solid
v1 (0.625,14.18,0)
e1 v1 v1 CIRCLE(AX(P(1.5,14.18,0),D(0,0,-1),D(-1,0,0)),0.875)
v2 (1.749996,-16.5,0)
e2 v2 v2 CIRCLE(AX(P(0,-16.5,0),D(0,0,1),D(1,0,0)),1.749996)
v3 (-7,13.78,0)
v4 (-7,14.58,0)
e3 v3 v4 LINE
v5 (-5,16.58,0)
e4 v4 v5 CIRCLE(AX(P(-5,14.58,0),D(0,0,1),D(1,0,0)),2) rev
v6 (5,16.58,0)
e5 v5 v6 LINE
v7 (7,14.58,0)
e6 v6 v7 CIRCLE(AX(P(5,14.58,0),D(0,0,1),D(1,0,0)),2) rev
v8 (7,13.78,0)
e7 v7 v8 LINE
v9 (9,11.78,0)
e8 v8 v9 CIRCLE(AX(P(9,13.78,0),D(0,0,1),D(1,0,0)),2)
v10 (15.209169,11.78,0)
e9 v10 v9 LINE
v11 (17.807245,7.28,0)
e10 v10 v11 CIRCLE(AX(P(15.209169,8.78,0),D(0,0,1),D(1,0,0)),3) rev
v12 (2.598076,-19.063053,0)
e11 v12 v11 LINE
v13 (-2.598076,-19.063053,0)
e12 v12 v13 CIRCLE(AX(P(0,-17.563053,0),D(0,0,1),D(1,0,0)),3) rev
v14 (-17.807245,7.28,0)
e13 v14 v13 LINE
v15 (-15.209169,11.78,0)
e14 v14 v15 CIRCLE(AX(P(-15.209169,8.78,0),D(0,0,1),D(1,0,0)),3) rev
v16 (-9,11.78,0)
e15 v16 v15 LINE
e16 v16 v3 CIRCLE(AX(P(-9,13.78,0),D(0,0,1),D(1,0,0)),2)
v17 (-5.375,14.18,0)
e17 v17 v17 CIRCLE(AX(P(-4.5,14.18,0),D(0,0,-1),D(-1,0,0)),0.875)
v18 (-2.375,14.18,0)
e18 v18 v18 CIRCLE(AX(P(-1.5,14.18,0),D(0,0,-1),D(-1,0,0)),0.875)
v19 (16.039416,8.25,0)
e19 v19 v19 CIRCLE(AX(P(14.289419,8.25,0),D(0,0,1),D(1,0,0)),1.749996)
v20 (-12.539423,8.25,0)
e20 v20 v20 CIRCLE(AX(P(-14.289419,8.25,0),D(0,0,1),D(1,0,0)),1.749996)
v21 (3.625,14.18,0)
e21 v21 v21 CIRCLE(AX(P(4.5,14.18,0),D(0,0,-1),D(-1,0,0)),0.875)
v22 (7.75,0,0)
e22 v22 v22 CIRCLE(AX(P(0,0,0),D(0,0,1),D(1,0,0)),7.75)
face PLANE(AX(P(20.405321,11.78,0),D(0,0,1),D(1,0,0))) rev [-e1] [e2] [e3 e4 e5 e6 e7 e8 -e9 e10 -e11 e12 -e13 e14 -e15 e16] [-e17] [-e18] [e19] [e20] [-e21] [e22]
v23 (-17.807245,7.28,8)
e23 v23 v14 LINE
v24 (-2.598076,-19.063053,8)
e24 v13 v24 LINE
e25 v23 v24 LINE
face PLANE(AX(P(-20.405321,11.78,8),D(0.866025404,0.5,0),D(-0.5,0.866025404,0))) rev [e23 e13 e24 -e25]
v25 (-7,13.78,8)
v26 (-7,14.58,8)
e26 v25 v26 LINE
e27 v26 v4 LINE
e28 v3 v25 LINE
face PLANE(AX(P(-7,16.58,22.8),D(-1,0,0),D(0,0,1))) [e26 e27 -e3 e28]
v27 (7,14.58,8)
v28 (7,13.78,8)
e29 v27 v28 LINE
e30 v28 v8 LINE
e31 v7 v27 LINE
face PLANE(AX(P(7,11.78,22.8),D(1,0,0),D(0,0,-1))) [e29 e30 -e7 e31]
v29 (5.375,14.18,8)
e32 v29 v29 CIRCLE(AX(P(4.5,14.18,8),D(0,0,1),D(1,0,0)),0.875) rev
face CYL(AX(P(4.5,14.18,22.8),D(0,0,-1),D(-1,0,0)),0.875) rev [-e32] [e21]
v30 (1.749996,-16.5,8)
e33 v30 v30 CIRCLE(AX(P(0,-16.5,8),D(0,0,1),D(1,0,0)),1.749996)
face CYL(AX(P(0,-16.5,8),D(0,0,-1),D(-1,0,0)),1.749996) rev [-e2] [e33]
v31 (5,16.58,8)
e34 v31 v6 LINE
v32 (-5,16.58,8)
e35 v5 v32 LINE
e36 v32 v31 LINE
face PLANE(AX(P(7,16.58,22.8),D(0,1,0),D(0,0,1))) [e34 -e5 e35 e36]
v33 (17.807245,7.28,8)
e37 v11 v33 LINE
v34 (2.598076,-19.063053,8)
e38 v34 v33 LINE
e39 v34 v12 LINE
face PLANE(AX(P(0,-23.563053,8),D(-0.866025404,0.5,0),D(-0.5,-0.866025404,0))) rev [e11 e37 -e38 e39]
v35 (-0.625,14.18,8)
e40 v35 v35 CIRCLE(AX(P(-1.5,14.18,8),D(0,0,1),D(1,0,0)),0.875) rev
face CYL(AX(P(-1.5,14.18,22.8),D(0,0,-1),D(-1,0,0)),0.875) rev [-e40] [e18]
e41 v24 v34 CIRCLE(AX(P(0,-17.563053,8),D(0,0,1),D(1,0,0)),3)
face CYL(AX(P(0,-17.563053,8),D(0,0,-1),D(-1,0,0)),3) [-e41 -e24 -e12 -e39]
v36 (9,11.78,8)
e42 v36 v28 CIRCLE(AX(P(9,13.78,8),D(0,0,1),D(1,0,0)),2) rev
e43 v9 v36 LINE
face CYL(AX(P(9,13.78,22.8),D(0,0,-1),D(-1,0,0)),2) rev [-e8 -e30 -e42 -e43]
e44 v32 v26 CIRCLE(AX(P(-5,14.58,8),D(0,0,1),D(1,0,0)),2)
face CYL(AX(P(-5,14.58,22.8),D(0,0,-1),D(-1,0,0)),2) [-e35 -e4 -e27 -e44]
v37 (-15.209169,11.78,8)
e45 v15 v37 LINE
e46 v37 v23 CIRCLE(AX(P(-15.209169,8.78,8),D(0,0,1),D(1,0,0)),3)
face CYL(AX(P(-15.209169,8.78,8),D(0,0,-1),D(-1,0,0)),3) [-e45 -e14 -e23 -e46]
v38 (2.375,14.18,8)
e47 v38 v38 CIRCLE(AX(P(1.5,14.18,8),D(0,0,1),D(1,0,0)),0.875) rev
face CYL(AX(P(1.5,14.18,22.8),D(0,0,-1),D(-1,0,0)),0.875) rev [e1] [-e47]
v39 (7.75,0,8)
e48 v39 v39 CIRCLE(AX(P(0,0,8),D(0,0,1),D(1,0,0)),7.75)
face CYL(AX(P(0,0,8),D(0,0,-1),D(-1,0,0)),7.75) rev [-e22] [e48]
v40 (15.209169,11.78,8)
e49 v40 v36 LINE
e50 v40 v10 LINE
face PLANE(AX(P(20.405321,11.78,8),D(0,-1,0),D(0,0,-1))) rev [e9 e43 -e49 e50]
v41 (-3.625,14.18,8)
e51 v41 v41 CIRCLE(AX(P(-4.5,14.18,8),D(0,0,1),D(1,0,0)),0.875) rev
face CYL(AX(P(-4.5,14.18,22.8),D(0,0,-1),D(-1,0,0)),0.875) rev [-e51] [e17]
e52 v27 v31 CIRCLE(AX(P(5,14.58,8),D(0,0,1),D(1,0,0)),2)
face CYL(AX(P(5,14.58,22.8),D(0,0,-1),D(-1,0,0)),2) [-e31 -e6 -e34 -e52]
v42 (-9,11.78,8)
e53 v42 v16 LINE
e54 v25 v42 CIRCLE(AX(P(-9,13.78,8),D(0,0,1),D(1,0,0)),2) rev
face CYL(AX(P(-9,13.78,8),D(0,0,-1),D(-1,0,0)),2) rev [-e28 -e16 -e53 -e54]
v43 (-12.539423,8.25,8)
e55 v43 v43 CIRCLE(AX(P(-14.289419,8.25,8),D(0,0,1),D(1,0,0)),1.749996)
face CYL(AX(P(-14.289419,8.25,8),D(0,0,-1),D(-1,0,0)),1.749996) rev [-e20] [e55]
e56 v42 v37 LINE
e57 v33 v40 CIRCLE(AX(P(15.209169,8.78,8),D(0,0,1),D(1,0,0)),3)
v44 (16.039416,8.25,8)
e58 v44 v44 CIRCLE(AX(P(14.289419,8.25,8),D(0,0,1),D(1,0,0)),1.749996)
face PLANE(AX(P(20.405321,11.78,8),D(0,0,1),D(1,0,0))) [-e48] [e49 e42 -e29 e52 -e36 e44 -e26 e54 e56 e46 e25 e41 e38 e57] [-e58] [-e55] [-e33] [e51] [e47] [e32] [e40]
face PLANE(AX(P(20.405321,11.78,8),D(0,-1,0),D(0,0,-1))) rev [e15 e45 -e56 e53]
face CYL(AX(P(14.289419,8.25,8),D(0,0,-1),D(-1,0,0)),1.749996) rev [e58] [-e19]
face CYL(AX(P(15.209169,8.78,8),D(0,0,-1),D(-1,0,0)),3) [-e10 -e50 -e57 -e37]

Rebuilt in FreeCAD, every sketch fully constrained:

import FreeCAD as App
import Part
import Sketcher
from FreeCAD import Vector
Q = App.Units.Quantity


def edges_at(feature, points):
    """Names of the edges that pass closest to the given points."""
    edges = feature.Shape.Edges
    near = lambda p: min(range(len(edges)), key=lambda i: edges[i].distToShape(Part.Vertex(*p))[0])
    return sorted({f"Edge{near(p) + 1}" for p in points})


def add_polygon(sketch, points):
    """Adds a closed chain of lines whose ends are joined by coincident constraints."""
    first, n = sketch.GeometryCount, len(points)
    for a, b in zip(points, points[1:] + points[:1]):
        sketch.addGeometry(Part.LineSegment(App.Vector(*a, 0), App.Vector(*b, 0)), False)
    for i in range(n):
        sketch.addConstraint(Sketcher.Constraint("Coincident", first + i, 2, first + (i + 1) % n, 1))

doc = App.newDocument("Part")
body = doc.addObject("PartDesign::Body", "Body")

# Sketch on XY plane
sketch1 = body.newObject("Sketcher::SketchObject", "Sketch")
sketch1.AttachmentSupport = (doc.getObject("XY_Plane"), [""])
sketch1.MapMode = "FlatFace"
add_polygon(sketch1, [(20.4, 11.8), (-20.4, 11.8), (0, -23.6)])  # lines 0-2
sketch1.addGeometry(Part.Circle(Vector(0, -16.5, 0), Vector(0, 0, 1), 1.7), False)  # 3
sketch1.addGeometry(Part.Circle(Vector(-14.3, 8.2, 0), Vector(0, 0, 1), 1.7), False)  # 4
sketch1.addGeometry(Part.Circle(Vector(0, 0, 0), Vector(0, 0, 1), 7.8), False)  # 5
sketch1.addGeometry(Part.Circle(Vector(14.3, 8.2, 0), Vector(0, 0, 1), 1.7), False)  # 6
sketch1.addConstraint([
    Sketcher.Constraint("Horizontal", 0),
    Sketcher.Constraint("Coincident", 5, 3, -1, 1),
    Sketcher.Constraint("Equal", 3, 4),
    Sketcher.Constraint("Equal", 4, 6),
    Sketcher.Constraint("Symmetric", 4, 3, 6, 3, -2),
    Sketcher.Constraint("PointOnObject", 3, 3, -2),
    Sketcher.Constraint("PointOnObject", 1, 2, -2),
    Sketcher.Constraint("Equal", 1, 2),
    Sketcher.Constraint("Diameter", 5, 15.5),
    Sketcher.Constraint("Angle", 1, Q("-60 deg")),
    Sketcher.Constraint("DistanceY", 3, 3, -1, 1, 16.5),
    Sketcher.Constraint("DistanceY", -1, 1, 4, 3, 8.25),
    Sketcher.Constraint("DistanceY", -1, 1, 0, 2, 11.78),
    Sketcher.Constraint("Diameter", 3, 3.499993),
    Sketcher.Constraint("DistanceX", 0, 2, 0, 1, 40.810643),
    Sketcher.Constraint("DistanceX", 4, 3, -1, 1, 14.289419),
])
pad1 = body.newObject("PartDesign::Pad", "Pad")
pad1.Profile = sketch1
pad1.Length = 8
doc.recompute()

fillet = body.newObject("PartDesign::Fillet", "Fillet")
fillet.Base = (pad1, edges_at(pad1, [(0, -23.563, 4), (-20.405, 11.78, 4), (20.405, 11.78, 4)]))
fillet.Radius = 3

# Sketch on XY plane
sketch2 = body.newObject("Sketcher::SketchObject", "Sketch001")
sketch2.AttachmentSupport = (doc.getObject("XY_Plane"), [""])
sketch2.MapMode = "FlatFace"
add_polygon(sketch2, [(7, 16.6), (7, 11.8), (-7, 11.8), (-7, 16.6)])  # lines 0-3
sketch2.addGeometry(Part.Circle(Vector(4.5, 14.2, 0), Vector(0, 0, 1), 0.9), False)  # 4
sketch2.addGeometry(Part.Circle(Vector(1.5, 14.2, 0), Vector(0, 0, 1), 0.9), False)  # 5
sketch2.addGeometry(Part.Circle(Vector(-1.5, 14.2, 0), Vector(0, 0, 1), 0.9), False)  # 6
sketch2.addGeometry(Part.Circle(Vector(-4.5, 14.2, 0), Vector(0, 0, 1), 0.9), False)  # 7
sketch2.addConstraint([
    Sketcher.Constraint("Vertical", 0),
    Sketcher.Constraint("Horizontal", 1),
    Sketcher.Constraint("Vertical", 2),
    Sketcher.Constraint("Horizontal", 3),
    Sketcher.Constraint("Equal", 4, 5),
    Sketcher.Constraint("Equal", 5, 6),
    Sketcher.Constraint("Equal", 6, 7),
    Sketcher.Constraint("Symmetric", 5, 3, 6, 3, -2),
    Sketcher.Constraint("Symmetric", 4, 3, 7, 3, -2),
    Sketcher.Constraint("Horizontal", 4, 3, 5, 3),
    Sketcher.Constraint("Diameter", 4, 1.75),
    Sketcher.Constraint("DistanceX", 1, 2, 1, 1, 14.0),
    Sketcher.Constraint("DistanceY", 0, 2, 0, 1, 4.8),
    Sketcher.Constraint("DistanceX", -1, 1, 0, 2, 7.0),
    Sketcher.Constraint("DistanceX", 5, 3, 4, 3, 3.0),
    Sketcher.Constraint("DistanceX", 6, 3, 5, 3, 3.0),
    Sketcher.Constraint("DistanceY", 0, 2, 4, 3, 2.4),
    Sketcher.Constraint("DistanceY", -1, 1, 4, 3, 14.18),
])
pad2 = body.newObject("PartDesign::Pad", "Pad001")
pad2.Profile = sketch2
pad2.Length = 8
doc.recompute()

fillet2 = body.newObject("PartDesign::Fillet", "Fillet001")
fillet2.Base = (pad2, edges_at(pad2, [
    (-7, 11.78, 4),
    (7, 11.78, 4),
    (7, 16.58, 4),
    (-7, 16.58, 4),
]))
fillet2.Radius = 2

doc.recompute()
